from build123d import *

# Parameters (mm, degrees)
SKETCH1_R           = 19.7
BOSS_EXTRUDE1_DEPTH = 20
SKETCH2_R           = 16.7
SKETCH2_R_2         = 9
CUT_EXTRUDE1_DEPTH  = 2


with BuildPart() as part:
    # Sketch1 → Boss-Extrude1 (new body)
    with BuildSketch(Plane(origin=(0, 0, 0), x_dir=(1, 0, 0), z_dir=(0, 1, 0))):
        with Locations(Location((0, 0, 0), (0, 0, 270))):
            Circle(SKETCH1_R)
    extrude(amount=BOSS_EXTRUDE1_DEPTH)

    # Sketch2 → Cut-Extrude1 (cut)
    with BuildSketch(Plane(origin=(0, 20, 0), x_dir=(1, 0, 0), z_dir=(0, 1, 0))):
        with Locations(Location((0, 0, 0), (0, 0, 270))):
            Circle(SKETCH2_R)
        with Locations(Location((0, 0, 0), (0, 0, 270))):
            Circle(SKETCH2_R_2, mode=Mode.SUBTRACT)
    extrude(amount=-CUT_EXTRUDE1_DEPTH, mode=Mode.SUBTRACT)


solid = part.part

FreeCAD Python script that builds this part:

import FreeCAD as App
import Part
import Sketcher

doc = App.newDocument("Part")
body = doc.addObject("PartDesign::Body", "Body")

# Sketch on XZ plane
sketch1 = body.newObject("Sketcher::SketchObject", "Sketch")
sketch1.AttachmentSupport = (doc.getObject("XZ_Plane"), [""])
sketch1.MapMode = "FlatFace"
sketch1.addGeometry(Part.Circle(App.Vector(0, 0, 0), App.Vector(0, 0, 1), 19.7), False)
sketch1.addConstraint([
    Sketcher.Constraint("Coincident", 0, 3, -1, 1),
    Sketcher.Constraint("Diameter", 0, 39.4),
])
pad1 = body.newObject("PartDesign::Pad", "Pad")
pad1.Profile = sketch1
pad1.Length = 20
pad1.Reversed = True

# Sketch on XZ plane
sketch2 = body.newObject("Sketcher::SketchObject", "Sketch001")
sketch2.AttachmentSupport = (doc.getObject("XZ_Plane"), [""])
sketch2.MapMode = "FlatFace"
sketch2.AttachmentOffset = App.Placement(App.Vector(0, 0, -20), App.Rotation())
sketch2.addGeometry([
    Part.Circle(App.Vector(0, 0, 0), App.Vector(0, 0, 1), 16.7),
    Part.Circle(App.Vector(0, 0, 0), App.Vector(0, 0, 1), 9),
], False)
sketch2.addConstraint([
    Sketcher.Constraint("Coincident", 0, 3, -1, 1),
    Sketcher.Constraint("Coincident", 1, 3, -1, 1),
    Sketcher.Constraint("Diameter", 1, 18.0),
    Sketcher.Constraint("Diameter", 0, 33.4),
])
pocket1 = body.newObject("PartDesign::Pocket", "Pocket")
pocket1.Profile = sketch2
pocket1.Length = 2
pocket1.Reversed = True

doc.recompute()
